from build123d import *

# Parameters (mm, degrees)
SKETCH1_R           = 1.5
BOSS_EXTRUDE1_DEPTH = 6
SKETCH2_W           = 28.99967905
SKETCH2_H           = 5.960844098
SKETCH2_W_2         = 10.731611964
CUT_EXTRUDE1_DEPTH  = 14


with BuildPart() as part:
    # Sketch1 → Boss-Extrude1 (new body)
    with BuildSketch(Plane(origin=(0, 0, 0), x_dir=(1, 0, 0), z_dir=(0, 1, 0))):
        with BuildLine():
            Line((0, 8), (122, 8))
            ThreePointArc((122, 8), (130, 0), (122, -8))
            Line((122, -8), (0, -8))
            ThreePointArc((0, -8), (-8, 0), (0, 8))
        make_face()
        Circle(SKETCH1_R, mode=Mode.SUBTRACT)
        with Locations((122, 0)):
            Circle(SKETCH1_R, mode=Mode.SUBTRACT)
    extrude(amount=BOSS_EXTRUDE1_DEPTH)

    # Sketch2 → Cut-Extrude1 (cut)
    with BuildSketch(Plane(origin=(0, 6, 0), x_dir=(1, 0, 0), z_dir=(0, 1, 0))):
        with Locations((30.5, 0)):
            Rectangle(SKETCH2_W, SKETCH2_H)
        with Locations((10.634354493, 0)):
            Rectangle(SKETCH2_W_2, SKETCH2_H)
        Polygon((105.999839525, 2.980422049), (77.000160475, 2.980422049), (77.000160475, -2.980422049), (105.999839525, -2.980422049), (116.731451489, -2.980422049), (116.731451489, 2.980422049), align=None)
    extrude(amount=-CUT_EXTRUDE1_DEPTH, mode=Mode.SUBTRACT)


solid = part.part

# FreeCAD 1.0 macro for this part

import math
import FreeCAD as App
import Part
import Sketcher

V = App.Vector


def add_polygon(sketch, points):
    """Adds a closed chain of lines whose ends are joined by coincident constraints."""
    first, n = sketch.GeometryCount, len(points)
    for a, b in zip(points, points[1:] + points[:1]):
        sketch.addGeometry(Part.LineSegment(App.Vector(*a, 0), App.Vector(*b, 0)), False)
    for i in range(n):
        sketch.addConstraint(Sketcher.Constraint("Coincident", first + i, 2, first + (i + 1) % n, 1))

doc = App.newDocument("Part")
body = doc.addObject("PartDesign::Body", "Body")

sketch1 = body.newObject("Sketcher::SketchObject", "Sketch")
sketch1.AttachmentSupport = (doc.getObject("XZ_Plane"), [""])
sketch1.MapMode = "FlatFace"
sketch1.addGeometry([
    Part.LineSegment(V(122, -8, 0), V(0, -8, 0)),
    Part.ArcOfCircle(Part.Circle(V(0, 0, 0), V(0, 0, 1), 8), math.radians(90), math.radians(270)),
    Part.LineSegment(V(0, 8, 0), V(122, 8, 0)),
    Part.ArcOfCircle(Part.Circle(V(122, 0, 0), V(0, 0, 1), 8), math.radians(-90), math.radians(90)),
    Part.Circle(V(122, 0, 0), V(0, 0, 1), 1.5),
    Part.Circle(V(0, 0, 0), V(0, 0, 1), 1.5),
], False)
sketch1.addConstraint([
    Sketcher.Constraint("Tangent", 0, 2, 1, 2),
    Sketcher.Constraint("Tangent", 1, 1, 2, 1),
    Sketcher.Constraint("Tangent", 2, 2, 3, 2),
    Sketcher.Constraint("Tangent", 3, 1, 0, 1),
    Sketcher.Constraint("Horizontal", 0),
    Sketcher.Constraint("Horizontal", 2),
    Sketcher.Constraint("Coincident", 1, 3, -1, 1),
    Sketcher.Constraint("Coincident", 5, 3, -1, 1),
    Sketcher.Constraint("Coincident", 4, 3, 3, 3),
    Sketcher.Constraint("Equal", 4, 5),
    Sketcher.Constraint("Diameter", 4, 3.0),
    Sketcher.Constraint("Radius", 1, 8.0),
    Sketcher.Constraint("DistanceX", 0, 2, 0, 1, 122.0),
])
pad1 = body.newObject("PartDesign::Pad", "Pad")
pad1.Profile = sketch1
pad1.Length = 6
pad1.Reversed = True

sketch2 = body.newObject("Sketcher::SketchObject", "Sketch001")
sketch2.AttachmentSupport = (doc.getObject("XZ_Plane"), [""])
sketch2.MapMode = "FlatFace"
sketch2.AttachmentOffset = App.Placement(V(0, 0, -6), App.Rotation())
add_polygon(sketch2, [(45, 3), (45, -3), (5, -3), (5, 3)])
add_polygon(sketch2, [(77, -3), (77, 3), (117, 3), (117, -3)])
sketch2.addConstraint([
    Sketcher.Constraint("Vertical", 0),
    Sketcher.Constraint("Horizontal", 1),
    Sketcher.Constraint("Vertical", 2),
    Sketcher.Constraint("Horizontal", 3),
    Sketcher.Constraint("Vertical", 4),
    Sketcher.Constraint("Horizontal", 5),
    Sketcher.Constraint("Vertical", 6),
    Sketcher.Constraint("Horizontal", 7),
    Sketcher.Constraint("Horizontal", 3, 2, 4, 2),
    Sketcher.Constraint("Horizontal", 1, 2, 6, 2),
    Sketcher.Constraint("Equal", 3, 5),
    Sketcher.Constraint("DistanceX", 1, 2, 1, 1, 39.731291),
    Sketcher.Constraint("DistanceY", 0, 2, 0, 1, 5.960844),
    Sketcher.Constraint("DistanceX", -1, 1, 0, 2, 44.99984),
    Sketcher.Constraint("DistanceX", -1, 1, 4, 2, 77.00016),
    Sketcher.Constraint("DistanceY", 0, 2, -1, 1, 2.980422),
])
pocket1 = body.newObject("PartDesign::Pocket", "Pocket")
pocket1.Profile = sketch2
pocket1.Length = 14
pocket1.Reversed = True

doc.recompute()
